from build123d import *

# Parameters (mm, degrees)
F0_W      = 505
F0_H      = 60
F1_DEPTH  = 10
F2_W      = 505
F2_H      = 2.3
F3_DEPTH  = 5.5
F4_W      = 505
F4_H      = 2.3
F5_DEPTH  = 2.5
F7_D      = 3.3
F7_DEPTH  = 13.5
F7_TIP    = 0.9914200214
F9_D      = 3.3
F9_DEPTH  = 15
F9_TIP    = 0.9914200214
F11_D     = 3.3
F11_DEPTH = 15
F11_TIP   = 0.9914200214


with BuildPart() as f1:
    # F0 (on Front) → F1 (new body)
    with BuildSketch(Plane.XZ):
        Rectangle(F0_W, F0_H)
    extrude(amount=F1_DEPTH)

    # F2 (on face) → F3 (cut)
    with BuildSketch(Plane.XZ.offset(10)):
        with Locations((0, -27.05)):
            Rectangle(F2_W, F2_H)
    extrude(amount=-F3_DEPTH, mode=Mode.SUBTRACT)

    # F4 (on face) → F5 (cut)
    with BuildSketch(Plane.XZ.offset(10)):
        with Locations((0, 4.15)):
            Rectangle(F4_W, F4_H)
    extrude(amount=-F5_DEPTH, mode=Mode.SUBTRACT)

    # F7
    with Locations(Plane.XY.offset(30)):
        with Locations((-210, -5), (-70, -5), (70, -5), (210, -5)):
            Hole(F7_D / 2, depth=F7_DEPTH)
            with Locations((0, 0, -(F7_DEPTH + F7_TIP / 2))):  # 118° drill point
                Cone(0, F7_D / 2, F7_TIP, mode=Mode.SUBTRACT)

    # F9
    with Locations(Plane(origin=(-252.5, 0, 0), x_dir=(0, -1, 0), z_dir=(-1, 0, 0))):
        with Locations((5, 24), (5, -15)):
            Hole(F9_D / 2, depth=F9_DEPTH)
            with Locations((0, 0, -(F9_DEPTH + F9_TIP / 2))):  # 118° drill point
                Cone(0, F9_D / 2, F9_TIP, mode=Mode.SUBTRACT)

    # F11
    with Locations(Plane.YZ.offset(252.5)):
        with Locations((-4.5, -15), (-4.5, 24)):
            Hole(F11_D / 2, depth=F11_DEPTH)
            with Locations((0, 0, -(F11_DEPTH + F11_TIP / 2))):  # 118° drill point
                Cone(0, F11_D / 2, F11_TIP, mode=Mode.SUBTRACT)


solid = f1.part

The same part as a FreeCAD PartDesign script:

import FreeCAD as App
import Part
import Sketcher


def add_polygon(sketch, points):
    """Adds a closed chain of lines whose ends are joined by coincident constraints."""
    first, n = sketch.GeometryCount, len(points)
    for a, b in zip(points, points[1:] + points[:1]):
        sketch.addGeometry(Part.LineSegment(App.Vector(*a, 0), App.Vector(*b, 0)), False)
    for i in range(n):
        sketch.addConstraint(Sketcher.Constraint("Coincident", first + i, 2, first + (i + 1) % n, 1))

doc = App.newDocument("Part")
params = doc.addObject("Spreadsheet::Sheet", "Params")
for row, (alias, value) in enumerate([
    ("sketch1_width", "505 mm"),
    ("sketch1_height", "60 mm"),
    ("pad1_length", "10 mm"),
    ("sketch2_width", "505 mm"),
    ("sketch2_height", "2.3 mm"),
    ("pocket1_length", "5.5 mm"),
    ("sketch3_width", "505 mm"),
    ("sketch3_height", "2.3 mm"),
    ("pocket2_length", "2.5 mm"),
    ("sketch4_diameter", "3.3 mm"),
    ("hole_diameter", "3.3 mm"),
    ("hole_depth", "13.5 mm"),
    ("sketch5_diameter", "3.3 mm"),
    ("hole2_diameter", "3.3 mm"),
    ("hole2_depth", "15 mm"),
    ("sketch6_diameter", "3.3 mm"),
    ("hole3_diameter", "3.3 mm"),
    ("hole3_depth", "15 mm"),
], start=1):
    params.set(f"A{row}", alias)
    params.set(f"B{row}", "=" + value)
    params.setAlias(f"B{row}", alias)

body = doc.addObject("PartDesign::Body", "Body")

sketch1 = doc.addObject("Sketcher::SketchObject", "Sketch")
body.addObject(sketch1)
sketch1.AttachmentSupport = (doc.XZ_Plane, [""])
sketch1.MapMode = "FlatFace"
add_polygon(sketch1, [(-252, 30), (-252, -30), (252, -30), (252, 30)])
sketch1.addConstraint(Sketcher.Constraint("Vertical", 0))
sketch1.addConstraint(Sketcher.Constraint("Horizontal", 1))
sketch1.addConstraint(Sketcher.Constraint("Vertical", 2))
sketch1.addConstraint(Sketcher.Constraint("Horizontal", 3))
sketch1.addConstraint(Sketcher.Constraint("Symmetric", 0, 2, 2, 2, -1, 1))
sketch1.addConstraint(Sketcher.Constraint("DistanceX", 1, 1, 1, 2, 505.0))
sketch1.addConstraint(Sketcher.Constraint("DistanceY", 0, 2, 0, 1, 60.0))
sketch1.setExpression("Constraints[9]", "Params.sketch1_width")
sketch1.setExpression("Constraints[10]", "Params.sketch1_height")
pad1 = doc.addObject("PartDesign::Pad", "Pad")
body.addObject(pad1)
pad1.Profile = sketch1
pad1.setExpression("Length", "Params.pad1_length")

sketch2 = doc.addObject("Sketcher::SketchObject", "Sketch001")
body.addObject(sketch2)
sketch2.AttachmentSupport = (doc.XZ_Plane, [""])
sketch2.MapMode = "FlatFace"
sketch2.AttachmentOffset = App.Placement(App.Vector(0, 0, 10), App.Rotation())
add_polygon(sketch2, [(-252.5, -25.9), (-252.5, -28.2), (252.5, -28.2), (252.5, -25.9)])
sketch2.addConstraint(Sketcher.Constraint("Vertical", 0))
sketch2.addConstraint(Sketcher.Constraint("Horizontal", 1))
sketch2.addConstraint(Sketcher.Constraint("Vertical", 2))
sketch2.addConstraint(Sketcher.Constraint("Horizontal", 3))
sketch2.addConstraint(Sketcher.Constraint("DistanceX", 1, 1, 1, 2, 505.0))
sketch2.addConstraint(Sketcher.Constraint("DistanceY", 0, 2, 0, 1, 2.3))
sketch2.addConstraint(Sketcher.Constraint("DistanceX", 0, 2, -1, 1, 252.5))
sketch2.addConstraint(Sketcher.Constraint("DistanceY", 0, 2, -1, 1, 28.2))
sketch2.setExpression("Constraints[8]", "Params.sketch2_width")
sketch2.setExpression("Constraints[9]", "Params.sketch2_height")
pocket1 = doc.addObject("PartDesign::Pocket", "Pocket")
body.addObject(pocket1)
pocket1.Profile = sketch2
pocket1.setExpression("Length", "Params.pocket1_length")

sketch3 = doc.addObject("Sketcher::SketchObject", "Sketch002")
body.addObject(sketch3)
sketch3.AttachmentSupport = (doc.XZ_Plane, [""])
sketch3.MapMode = "FlatFace"
sketch3.AttachmentOffset = App.Placement(App.Vector(0, 0, 10), App.Rotation())
add_polygon(sketch3, [(-252.5, 5.3), (-252.5, 3), (252.5, 3), (252.5, 5.3)])
sketch3.addConstraint(Sketcher.Constraint("Vertical", 0))
sketch3.addConstraint(Sketcher.Constraint("Horizontal", 1))
sketch3.addConstraint(Sketcher.Constraint("Vertical", 2))
sketch3.addConstraint(Sketcher.Constraint("Horizontal", 3))
sketch3.addConstraint(Sketcher.Constraint("DistanceX", 1, 1, 1, 2, 505.0))
sketch3.addConstraint(Sketcher.Constraint("DistanceY", 0, 2, 0, 1, 2.3))
sketch3.addConstraint(Sketcher.Constraint("DistanceY", -1, 1, 0, 2, 3.0))
sketch3.addConstraint(Sketcher.Constraint("DistanceX", 0, 2, -1, 1, 252.5))
sketch3.setExpression("Constraints[8]", "Params.sketch3_width")
sketch3.setExpression("Constraints[9]", "Params.sketch3_height")
pocket2 = doc.addObject("PartDesign::Pocket", "Pocket001")
body.addObject(pocket2)
pocket2.Profile = sketch3
pocket2.setExpression("Length", "Params.pocket2_length")

sketch4 = doc.addObject("Sketcher::SketchObject", "Sketch003")
body.addObject(sketch4)
sketch4.AttachmentSupport = (doc.XY_Plane, [""])
sketch4.MapMode = "FlatFace"
sketch4.AttachmentOffset = App.Placement(App.Vector(0, 0, 30), App.Rotation())
sketch4.addGeometry(Part.Circle(App.Vector(-210, -5, 0), App.Vector(0, 0, 1), 1.6), False)
sketch4.addGeometry(Part.Circle(App.Vector(-70, -5, 0), App.Vector(0, 0, 1), 1.6), False)
sketch4.addGeometry(Part.Circle(App.Vector(70, -5, 0), App.Vector(0, 0, 1), 1.6), False)
sketch4.addGeometry(Part.Circle(App.Vector(210, -5, 0), App.Vector(0, 0, 1), 1.6), False)
sketch4.addConstraint(Sketcher.Constraint("Equal", 0, 1))
sketch4.addConstraint(Sketcher.Constraint("Equal", 1, 2))
sketch4.addConstraint(Sketcher.Constraint("Equal", 2, 3))
sketch4.addConstraint(Sketcher.Constraint("Symmetric", 1, 3, 2, 3, -2))
sketch4.addConstraint(Sketcher.Constraint("Symmetric", 0, 3, 3, 3, -2))
sketch4.addConstraint(Sketcher.Constraint("Horizontal", 0, 3, 1, 3))
sketch4.addConstraint(Sketcher.Constraint("Diameter", 0, 3.3))
sketch4.addConstraint(Sketcher.Constraint("DistanceX", 0, 3, -1, 1, 210.0))
sketch4.addConstraint(Sketcher.Constraint("DistanceY", 0, 3, -1, 1, 5.0))
sketch4.addConstraint(Sketcher.Constraint("DistanceX", 1, 3, -1, 1, 70.0))
sketch4.setExpression("Constraints[6]", "Params.sketch4_diameter")
doc.recompute()
hole = doc.addObject("PartDesign::Hole", "Hole")
body.addObject(hole)
hole.Profile = sketch4
hole.ThreadType = "None"
hole.setExpression("Diameter", "Params.hole_diameter")
hole.DepthType = "Dimension"
hole.setExpression("Depth", "Params.hole_depth")
hole.DrillPoint = "Angled"
hole.DrillPointAngle = 118

sketch5 = doc.addObject("Sketcher::SketchObject", "Sketch004")
body.addObject(sketch5)
sketch5.AttachmentSupport = (doc.YZ_Plane, [""])
sketch5.MapMode = "FlatFace"
sketch5.AttachmentOffset = App.Placement(App.Vector(0, 0, -252.5), App.Rotation())
sketch5.addGeometry(Part.Circle(App.Vector(-5, 24, 0), App.Vector(0, 0, 1), 1.6), False)
sketch5.addGeometry(Part.Circle(App.Vector(-5, -15, 0), App.Vector(0, 0, 1), 1.6), False)
sketch5.addConstraint(Sketcher.Constraint("Equal", 0, 1))
sketch5.addConstraint(Sketcher.Constraint("Vertical", 0, 3, 1, 3))
sketch5.addConstraint(Sketcher.Constraint("Diameter", 0, 3.3))
sketch5.addConstraint(Sketcher.Constraint("DistanceX", 0, 3, -1, 1, 5.0))
sketch5.addConstraint(Sketcher.Constraint("DistanceY", -1, 1, 0, 3, 24.0))
sketch5.addConstraint(Sketcher.Constraint("DistanceY", 1, 3, -1, 1, 15.0))
sketch5.setExpression("Constraints[2]", "Params.sketch5_diameter")
doc.recompute()
hole2 = doc.addObject("PartDesign::Hole", "Hole001")
body.addObject(hole2)
hole2.Profile = sketch5
hole2.ThreadType = "None"
hole2.setExpression("Diameter", "Params.hole2_diameter")
hole2.DepthType = "Dimension"
hole2.setExpression("Depth", "Params.hole2_depth")
hole2.DrillPoint = "Angled"
hole2.DrillPointAngle = 118
hole2.Reversed = True

sketch6 = doc.addObject("Sketcher::SketchObject", "Sketch005")
body.addObject(sketch6)
sketch6.AttachmentSupport = (doc.YZ_Plane, [""])
sketch6.MapMode = "FlatFace"
sketch6.AttachmentOffset = App.Placement(App.Vector(0, 0, 252.5), App.Rotation())
sketch6.addGeometry(Part.Circle(App.Vector(-4.5, -15, 0), App.Vector(0, 0, 1), 1.6), False)
sketch6.addGeometry(Part.Circle(App.Vector(-4.5, 24, 0), App.Vector(0, 0, 1), 1.6), False)
sketch6.addConstraint(Sketcher.Constraint("Equal", 0, 1))
sketch6.addConstraint(Sketcher.Constraint("Vertical", 0, 3, 1, 3))
sketch6.addConstraint(Sketcher.Constraint("Diameter", 0, 3.3))
sketch6.addConstraint(Sketcher.Constraint("DistanceY", 0, 3, -1, 1, 15.0))
sketch6.addConstraint(Sketcher.Constraint("DistanceY", -1, 1, 1, 3, 24.0))
sketch6.addConstraint(Sketcher.Constraint("DistanceX", 0, 3, -1, 1, 4.5))
sketch6.setExpression("Constraints[2]", "Params.sketch6_diameter")
doc.recompute()
hole3 = doc.addObject("PartDesign::Hole", "Hole002")
body.addObject(hole3)
hole3.Profile = sketch6
hole3.ThreadType = "None"
hole3.setExpression("Diameter", "Params.hole3_diameter")
hole3.DepthType = "Dimension"
hole3.setExpression("Depth", "Params.hole3_depth")
hole3.DrillPoint = "Angled"
hole3.DrillPointAngle = 118

doc.recompute()
